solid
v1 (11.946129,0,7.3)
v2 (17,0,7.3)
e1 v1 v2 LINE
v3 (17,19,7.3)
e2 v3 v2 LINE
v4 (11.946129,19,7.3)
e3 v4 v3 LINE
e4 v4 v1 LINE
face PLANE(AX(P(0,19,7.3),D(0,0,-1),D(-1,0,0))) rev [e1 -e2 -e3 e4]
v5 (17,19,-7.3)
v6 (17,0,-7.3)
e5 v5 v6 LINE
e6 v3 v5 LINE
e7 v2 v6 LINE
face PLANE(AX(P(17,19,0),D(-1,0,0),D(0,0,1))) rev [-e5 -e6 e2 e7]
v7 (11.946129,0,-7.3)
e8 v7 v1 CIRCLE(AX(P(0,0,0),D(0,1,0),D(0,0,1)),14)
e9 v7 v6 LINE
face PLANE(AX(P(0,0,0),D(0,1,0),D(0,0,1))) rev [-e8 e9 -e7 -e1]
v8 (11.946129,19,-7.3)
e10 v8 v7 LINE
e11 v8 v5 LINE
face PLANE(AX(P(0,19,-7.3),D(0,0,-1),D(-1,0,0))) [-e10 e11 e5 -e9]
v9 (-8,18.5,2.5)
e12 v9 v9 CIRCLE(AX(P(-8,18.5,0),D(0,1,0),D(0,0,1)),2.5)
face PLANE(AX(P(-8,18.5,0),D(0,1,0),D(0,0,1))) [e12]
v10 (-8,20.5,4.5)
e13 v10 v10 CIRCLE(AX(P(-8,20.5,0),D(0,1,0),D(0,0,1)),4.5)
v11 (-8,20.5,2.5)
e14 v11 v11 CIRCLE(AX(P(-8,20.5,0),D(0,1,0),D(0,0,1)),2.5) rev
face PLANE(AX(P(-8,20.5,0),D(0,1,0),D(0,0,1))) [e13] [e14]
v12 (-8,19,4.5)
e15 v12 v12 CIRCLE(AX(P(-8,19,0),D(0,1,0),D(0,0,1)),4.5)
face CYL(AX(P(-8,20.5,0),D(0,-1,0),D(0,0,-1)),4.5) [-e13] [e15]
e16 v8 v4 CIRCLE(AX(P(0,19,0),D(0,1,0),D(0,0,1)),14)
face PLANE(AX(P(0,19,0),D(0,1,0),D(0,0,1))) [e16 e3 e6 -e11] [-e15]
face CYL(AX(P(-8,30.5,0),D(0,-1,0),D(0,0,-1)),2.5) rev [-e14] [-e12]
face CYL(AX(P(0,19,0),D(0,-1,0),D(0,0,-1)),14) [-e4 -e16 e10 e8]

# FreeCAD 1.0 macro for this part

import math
import FreeCAD as App
import Part
import Sketcher
from FreeCAD import Vector
Q = App.Units.Quantity

doc = App.newDocument("Part")
body = doc.addObject("PartDesign::Body", "Body")

# Sketch on XZ plane
sketch1 = doc.addObject("Sketcher::SketchObject", "Sketch")
body.addObject(sketch1)
sketch1.AttachmentSupport = (doc.XZ_Plane, [""])
sketch1.MapMode = "FlatFace"
sketch1.addGeometry([
    Part.LineSegment(Vector(12, 7, 0), Vector(17, 7, 0)),
    Part.LineSegment(Vector(17, 7, 0), Vector(17, -7, 0)),
    Part.LineSegment(Vector(17, -7, 0), Vector(12, -7, 0)),
    Part.ArcOfCircle(Part.Circle(Vector(0, 0, 0), Vector(0, 0, 1), 14), math.radians(31), math.radians(329)),
], False)
sketch1.addConstraint([
    Sketcher.Constraint("Coincident", 0, 2, 1, 1),
    Sketcher.Constraint("Coincident", 1, 2, 2, 1),
    Sketcher.Constraint("Coincident", 2, 2, 3, 2),
    Sketcher.Constraint("Coincident", 3, 1, 0, 1),
    Sketcher.Constraint("Horizontal", 0),
    Sketcher.Constraint("Vertical", 1),
    Sketcher.Constraint("Horizontal", 2),
    Sketcher.Constraint("Coincident", 3, 3, -1, 1),
    Sketcher.Constraint("Vertical", 2, 2, 3, 1),
    Sketcher.Constraint("Radius", 3, Q("14 mm")),
    Sketcher.Constraint("DistanceY", 1, 2, 1, 1, Q("14.6 mm")),
    Sketcher.Constraint("DistanceX", -1, 1, 0, 2, Q("17 mm")),
])
pad1 = doc.addObject("PartDesign::Pad", "Pad")
body.addObject(pad1)
pad1.Profile = sketch1
pad1.Length = 19
pad1.Reversed = True

# Sketch on XZ plane
sketch2 = doc.addObject("Sketcher::SketchObject", "Sketch001")
body.addObject(sketch2)
sketch2.AttachmentSupport = (doc.XZ_Plane, [""])
sketch2.MapMode = "FlatFace"
sketch2.AttachmentOffset = App.Placement(Vector(0, 0, -19), App.Rotation())
sketch2.addGeometry(Part.Circle(Vector(-8, 0, 0), Vector(0, 0, 1), 4.5), False)
sketch2.addConstraint([
    Sketcher.Constraint("PointOnObject", 0, 3, -1),
    Sketcher.Constraint("Diameter", 0, Q("9 mm")),
    Sketcher.Constraint("DistanceX", 0, 3, -1, 1, Q("8 mm")),
])
pad2 = doc.addObject("PartDesign::Pad", "Pad001")
body.addObject(pad2)
pad2.Profile = sketch2
pad2.Length = 1.5
pad2.Reversed = True

# Sketch on XZ plane
sketch3 = doc.addObject("Sketcher::SketchObject", "Sketch002")
body.addObject(sketch3)
sketch3.AttachmentSupport = (doc.XZ_Plane, [""])
sketch3.MapMode = "FlatFace"
sketch3.AttachmentOffset = App.Placement(Vector(0, 0, -20.5), App.Rotation())
sketch3.addGeometry(Part.Circle(Vector(-8, 0, 0), Vector(0, 0, 1), 2.5), False)
sketch3.addConstraint([
    Sketcher.Constraint("PointOnObject", 0, 3, -1),
    Sketcher.Constraint("Diameter", 0, Q("5 mm")),
    Sketcher.Constraint("DistanceX", 0, 3, -1, 1, Q("8 mm")),
])
pad3 = doc.addObject("PartDesign::Pad", "Pad002")
body.addObject(pad3)
pad3.Profile = sketch3
pad3.Length = 2.5
pad3.Reversed = True

# Sketch on XZ plane
sketch4 = doc.addObject("Sketcher::SketchObject", "Sketch003")
body.addObject(sketch4)
sketch4.AttachmentSupport = (doc.XZ_Plane, [""])
sketch4.MapMode = "FlatFace"
sketch4.AttachmentOffset = App.Placement(Vector(0, 0, -23), App.Rotation())
sketch4.addGeometry([
    Part.LineSegment(Vector(-9.5, -2, 0), Vector(-9.5, 2, 0)),
    Part.ArcOfCircle(Part.Circle(Vector(-8, 0, 0), Vector(0, 0, 1), 2.5), math.radians(53), math.radians(127)),
    Part.LineSegment(Vector(-6.5, 2, 0), Vector(-6.5, -2, 0)),
    Part.ArcOfCircle(Part.Circle(Vector(-8, 0, 0), Vector(0, 0, 1), 2.5), math.radians(-127), math.radians(-53)),
], False)
sketch4.addConstraint([
    Sketcher.Constraint("Coincident", 0, 2, 1, 2),
    Sketcher.Constraint("Coincident", 1, 1, 2, 1),
    Sketcher.Constraint("Coincident", 2, 2, 3, 2),
    Sketcher.Constraint("Coincident", 3, 1, 0, 1),
    Sketcher.Constraint("Vertical", 0),
    Sketcher.Constraint("Vertical", 2),
    Sketcher.Constraint("Coincident", 3, 3, 1, 3),
    Sketcher.Constraint("Equal", 1, 3),
    Sketcher.Constraint("PointOnObject", 1, 3, -1),
    Sketcher.Constraint("Horizontal", 0, 2, 1, 1),
    Sketcher.Constraint("Radius", 1, Q("2.5 mm")),
    Sketcher.Constraint("DistanceY", 0, 1, 0, 2, Q("4 mm")),
    Sketcher.Constraint("DistanceX", 1, 3, -1, 1, Q("8 mm")),
])
pad4 = doc.addObject("PartDesign::Pad", "Pad003")
body.addObject(pad4)
pad4.Profile = sketch4
pad4.Length = 6
pad4.Reversed = True

# Sketch on XZ plane
sketch5 = doc.addObject("Sketcher::SketchObject", "Sketch004")
body.addObject(sketch5)
sketch5.AttachmentSupport = (doc.XZ_Plane, [""])
sketch5.MapMode = "FlatFace"
sketch5.AttachmentOffset = App.Placement(Vector(0, 0, -20.5), App.Rotation())
sketch5.addGeometry(Part.Circle(Vector(-8, 0, 0), Vector(0, 0, 1), 2.5), False)
sketch5.addConstraint([
    Sketcher.Constraint("PointOnObject", 0, 3, -1),
    Sketcher.Constraint("Diameter", 0, Q("5 mm")),
    Sketcher.Constraint("DistanceX", 0, 3, -1, 1, Q("8 mm")),
])
pocket1 = doc.addObject("PartDesign::Pocket", "Pocket")
body.addObject(pocket1)
pocket1.Profile = sketch5
pocket1.Type = "TwoLengths"
pocket1.Length = 10
pocket1.Length2 = 2

doc.recompute()
